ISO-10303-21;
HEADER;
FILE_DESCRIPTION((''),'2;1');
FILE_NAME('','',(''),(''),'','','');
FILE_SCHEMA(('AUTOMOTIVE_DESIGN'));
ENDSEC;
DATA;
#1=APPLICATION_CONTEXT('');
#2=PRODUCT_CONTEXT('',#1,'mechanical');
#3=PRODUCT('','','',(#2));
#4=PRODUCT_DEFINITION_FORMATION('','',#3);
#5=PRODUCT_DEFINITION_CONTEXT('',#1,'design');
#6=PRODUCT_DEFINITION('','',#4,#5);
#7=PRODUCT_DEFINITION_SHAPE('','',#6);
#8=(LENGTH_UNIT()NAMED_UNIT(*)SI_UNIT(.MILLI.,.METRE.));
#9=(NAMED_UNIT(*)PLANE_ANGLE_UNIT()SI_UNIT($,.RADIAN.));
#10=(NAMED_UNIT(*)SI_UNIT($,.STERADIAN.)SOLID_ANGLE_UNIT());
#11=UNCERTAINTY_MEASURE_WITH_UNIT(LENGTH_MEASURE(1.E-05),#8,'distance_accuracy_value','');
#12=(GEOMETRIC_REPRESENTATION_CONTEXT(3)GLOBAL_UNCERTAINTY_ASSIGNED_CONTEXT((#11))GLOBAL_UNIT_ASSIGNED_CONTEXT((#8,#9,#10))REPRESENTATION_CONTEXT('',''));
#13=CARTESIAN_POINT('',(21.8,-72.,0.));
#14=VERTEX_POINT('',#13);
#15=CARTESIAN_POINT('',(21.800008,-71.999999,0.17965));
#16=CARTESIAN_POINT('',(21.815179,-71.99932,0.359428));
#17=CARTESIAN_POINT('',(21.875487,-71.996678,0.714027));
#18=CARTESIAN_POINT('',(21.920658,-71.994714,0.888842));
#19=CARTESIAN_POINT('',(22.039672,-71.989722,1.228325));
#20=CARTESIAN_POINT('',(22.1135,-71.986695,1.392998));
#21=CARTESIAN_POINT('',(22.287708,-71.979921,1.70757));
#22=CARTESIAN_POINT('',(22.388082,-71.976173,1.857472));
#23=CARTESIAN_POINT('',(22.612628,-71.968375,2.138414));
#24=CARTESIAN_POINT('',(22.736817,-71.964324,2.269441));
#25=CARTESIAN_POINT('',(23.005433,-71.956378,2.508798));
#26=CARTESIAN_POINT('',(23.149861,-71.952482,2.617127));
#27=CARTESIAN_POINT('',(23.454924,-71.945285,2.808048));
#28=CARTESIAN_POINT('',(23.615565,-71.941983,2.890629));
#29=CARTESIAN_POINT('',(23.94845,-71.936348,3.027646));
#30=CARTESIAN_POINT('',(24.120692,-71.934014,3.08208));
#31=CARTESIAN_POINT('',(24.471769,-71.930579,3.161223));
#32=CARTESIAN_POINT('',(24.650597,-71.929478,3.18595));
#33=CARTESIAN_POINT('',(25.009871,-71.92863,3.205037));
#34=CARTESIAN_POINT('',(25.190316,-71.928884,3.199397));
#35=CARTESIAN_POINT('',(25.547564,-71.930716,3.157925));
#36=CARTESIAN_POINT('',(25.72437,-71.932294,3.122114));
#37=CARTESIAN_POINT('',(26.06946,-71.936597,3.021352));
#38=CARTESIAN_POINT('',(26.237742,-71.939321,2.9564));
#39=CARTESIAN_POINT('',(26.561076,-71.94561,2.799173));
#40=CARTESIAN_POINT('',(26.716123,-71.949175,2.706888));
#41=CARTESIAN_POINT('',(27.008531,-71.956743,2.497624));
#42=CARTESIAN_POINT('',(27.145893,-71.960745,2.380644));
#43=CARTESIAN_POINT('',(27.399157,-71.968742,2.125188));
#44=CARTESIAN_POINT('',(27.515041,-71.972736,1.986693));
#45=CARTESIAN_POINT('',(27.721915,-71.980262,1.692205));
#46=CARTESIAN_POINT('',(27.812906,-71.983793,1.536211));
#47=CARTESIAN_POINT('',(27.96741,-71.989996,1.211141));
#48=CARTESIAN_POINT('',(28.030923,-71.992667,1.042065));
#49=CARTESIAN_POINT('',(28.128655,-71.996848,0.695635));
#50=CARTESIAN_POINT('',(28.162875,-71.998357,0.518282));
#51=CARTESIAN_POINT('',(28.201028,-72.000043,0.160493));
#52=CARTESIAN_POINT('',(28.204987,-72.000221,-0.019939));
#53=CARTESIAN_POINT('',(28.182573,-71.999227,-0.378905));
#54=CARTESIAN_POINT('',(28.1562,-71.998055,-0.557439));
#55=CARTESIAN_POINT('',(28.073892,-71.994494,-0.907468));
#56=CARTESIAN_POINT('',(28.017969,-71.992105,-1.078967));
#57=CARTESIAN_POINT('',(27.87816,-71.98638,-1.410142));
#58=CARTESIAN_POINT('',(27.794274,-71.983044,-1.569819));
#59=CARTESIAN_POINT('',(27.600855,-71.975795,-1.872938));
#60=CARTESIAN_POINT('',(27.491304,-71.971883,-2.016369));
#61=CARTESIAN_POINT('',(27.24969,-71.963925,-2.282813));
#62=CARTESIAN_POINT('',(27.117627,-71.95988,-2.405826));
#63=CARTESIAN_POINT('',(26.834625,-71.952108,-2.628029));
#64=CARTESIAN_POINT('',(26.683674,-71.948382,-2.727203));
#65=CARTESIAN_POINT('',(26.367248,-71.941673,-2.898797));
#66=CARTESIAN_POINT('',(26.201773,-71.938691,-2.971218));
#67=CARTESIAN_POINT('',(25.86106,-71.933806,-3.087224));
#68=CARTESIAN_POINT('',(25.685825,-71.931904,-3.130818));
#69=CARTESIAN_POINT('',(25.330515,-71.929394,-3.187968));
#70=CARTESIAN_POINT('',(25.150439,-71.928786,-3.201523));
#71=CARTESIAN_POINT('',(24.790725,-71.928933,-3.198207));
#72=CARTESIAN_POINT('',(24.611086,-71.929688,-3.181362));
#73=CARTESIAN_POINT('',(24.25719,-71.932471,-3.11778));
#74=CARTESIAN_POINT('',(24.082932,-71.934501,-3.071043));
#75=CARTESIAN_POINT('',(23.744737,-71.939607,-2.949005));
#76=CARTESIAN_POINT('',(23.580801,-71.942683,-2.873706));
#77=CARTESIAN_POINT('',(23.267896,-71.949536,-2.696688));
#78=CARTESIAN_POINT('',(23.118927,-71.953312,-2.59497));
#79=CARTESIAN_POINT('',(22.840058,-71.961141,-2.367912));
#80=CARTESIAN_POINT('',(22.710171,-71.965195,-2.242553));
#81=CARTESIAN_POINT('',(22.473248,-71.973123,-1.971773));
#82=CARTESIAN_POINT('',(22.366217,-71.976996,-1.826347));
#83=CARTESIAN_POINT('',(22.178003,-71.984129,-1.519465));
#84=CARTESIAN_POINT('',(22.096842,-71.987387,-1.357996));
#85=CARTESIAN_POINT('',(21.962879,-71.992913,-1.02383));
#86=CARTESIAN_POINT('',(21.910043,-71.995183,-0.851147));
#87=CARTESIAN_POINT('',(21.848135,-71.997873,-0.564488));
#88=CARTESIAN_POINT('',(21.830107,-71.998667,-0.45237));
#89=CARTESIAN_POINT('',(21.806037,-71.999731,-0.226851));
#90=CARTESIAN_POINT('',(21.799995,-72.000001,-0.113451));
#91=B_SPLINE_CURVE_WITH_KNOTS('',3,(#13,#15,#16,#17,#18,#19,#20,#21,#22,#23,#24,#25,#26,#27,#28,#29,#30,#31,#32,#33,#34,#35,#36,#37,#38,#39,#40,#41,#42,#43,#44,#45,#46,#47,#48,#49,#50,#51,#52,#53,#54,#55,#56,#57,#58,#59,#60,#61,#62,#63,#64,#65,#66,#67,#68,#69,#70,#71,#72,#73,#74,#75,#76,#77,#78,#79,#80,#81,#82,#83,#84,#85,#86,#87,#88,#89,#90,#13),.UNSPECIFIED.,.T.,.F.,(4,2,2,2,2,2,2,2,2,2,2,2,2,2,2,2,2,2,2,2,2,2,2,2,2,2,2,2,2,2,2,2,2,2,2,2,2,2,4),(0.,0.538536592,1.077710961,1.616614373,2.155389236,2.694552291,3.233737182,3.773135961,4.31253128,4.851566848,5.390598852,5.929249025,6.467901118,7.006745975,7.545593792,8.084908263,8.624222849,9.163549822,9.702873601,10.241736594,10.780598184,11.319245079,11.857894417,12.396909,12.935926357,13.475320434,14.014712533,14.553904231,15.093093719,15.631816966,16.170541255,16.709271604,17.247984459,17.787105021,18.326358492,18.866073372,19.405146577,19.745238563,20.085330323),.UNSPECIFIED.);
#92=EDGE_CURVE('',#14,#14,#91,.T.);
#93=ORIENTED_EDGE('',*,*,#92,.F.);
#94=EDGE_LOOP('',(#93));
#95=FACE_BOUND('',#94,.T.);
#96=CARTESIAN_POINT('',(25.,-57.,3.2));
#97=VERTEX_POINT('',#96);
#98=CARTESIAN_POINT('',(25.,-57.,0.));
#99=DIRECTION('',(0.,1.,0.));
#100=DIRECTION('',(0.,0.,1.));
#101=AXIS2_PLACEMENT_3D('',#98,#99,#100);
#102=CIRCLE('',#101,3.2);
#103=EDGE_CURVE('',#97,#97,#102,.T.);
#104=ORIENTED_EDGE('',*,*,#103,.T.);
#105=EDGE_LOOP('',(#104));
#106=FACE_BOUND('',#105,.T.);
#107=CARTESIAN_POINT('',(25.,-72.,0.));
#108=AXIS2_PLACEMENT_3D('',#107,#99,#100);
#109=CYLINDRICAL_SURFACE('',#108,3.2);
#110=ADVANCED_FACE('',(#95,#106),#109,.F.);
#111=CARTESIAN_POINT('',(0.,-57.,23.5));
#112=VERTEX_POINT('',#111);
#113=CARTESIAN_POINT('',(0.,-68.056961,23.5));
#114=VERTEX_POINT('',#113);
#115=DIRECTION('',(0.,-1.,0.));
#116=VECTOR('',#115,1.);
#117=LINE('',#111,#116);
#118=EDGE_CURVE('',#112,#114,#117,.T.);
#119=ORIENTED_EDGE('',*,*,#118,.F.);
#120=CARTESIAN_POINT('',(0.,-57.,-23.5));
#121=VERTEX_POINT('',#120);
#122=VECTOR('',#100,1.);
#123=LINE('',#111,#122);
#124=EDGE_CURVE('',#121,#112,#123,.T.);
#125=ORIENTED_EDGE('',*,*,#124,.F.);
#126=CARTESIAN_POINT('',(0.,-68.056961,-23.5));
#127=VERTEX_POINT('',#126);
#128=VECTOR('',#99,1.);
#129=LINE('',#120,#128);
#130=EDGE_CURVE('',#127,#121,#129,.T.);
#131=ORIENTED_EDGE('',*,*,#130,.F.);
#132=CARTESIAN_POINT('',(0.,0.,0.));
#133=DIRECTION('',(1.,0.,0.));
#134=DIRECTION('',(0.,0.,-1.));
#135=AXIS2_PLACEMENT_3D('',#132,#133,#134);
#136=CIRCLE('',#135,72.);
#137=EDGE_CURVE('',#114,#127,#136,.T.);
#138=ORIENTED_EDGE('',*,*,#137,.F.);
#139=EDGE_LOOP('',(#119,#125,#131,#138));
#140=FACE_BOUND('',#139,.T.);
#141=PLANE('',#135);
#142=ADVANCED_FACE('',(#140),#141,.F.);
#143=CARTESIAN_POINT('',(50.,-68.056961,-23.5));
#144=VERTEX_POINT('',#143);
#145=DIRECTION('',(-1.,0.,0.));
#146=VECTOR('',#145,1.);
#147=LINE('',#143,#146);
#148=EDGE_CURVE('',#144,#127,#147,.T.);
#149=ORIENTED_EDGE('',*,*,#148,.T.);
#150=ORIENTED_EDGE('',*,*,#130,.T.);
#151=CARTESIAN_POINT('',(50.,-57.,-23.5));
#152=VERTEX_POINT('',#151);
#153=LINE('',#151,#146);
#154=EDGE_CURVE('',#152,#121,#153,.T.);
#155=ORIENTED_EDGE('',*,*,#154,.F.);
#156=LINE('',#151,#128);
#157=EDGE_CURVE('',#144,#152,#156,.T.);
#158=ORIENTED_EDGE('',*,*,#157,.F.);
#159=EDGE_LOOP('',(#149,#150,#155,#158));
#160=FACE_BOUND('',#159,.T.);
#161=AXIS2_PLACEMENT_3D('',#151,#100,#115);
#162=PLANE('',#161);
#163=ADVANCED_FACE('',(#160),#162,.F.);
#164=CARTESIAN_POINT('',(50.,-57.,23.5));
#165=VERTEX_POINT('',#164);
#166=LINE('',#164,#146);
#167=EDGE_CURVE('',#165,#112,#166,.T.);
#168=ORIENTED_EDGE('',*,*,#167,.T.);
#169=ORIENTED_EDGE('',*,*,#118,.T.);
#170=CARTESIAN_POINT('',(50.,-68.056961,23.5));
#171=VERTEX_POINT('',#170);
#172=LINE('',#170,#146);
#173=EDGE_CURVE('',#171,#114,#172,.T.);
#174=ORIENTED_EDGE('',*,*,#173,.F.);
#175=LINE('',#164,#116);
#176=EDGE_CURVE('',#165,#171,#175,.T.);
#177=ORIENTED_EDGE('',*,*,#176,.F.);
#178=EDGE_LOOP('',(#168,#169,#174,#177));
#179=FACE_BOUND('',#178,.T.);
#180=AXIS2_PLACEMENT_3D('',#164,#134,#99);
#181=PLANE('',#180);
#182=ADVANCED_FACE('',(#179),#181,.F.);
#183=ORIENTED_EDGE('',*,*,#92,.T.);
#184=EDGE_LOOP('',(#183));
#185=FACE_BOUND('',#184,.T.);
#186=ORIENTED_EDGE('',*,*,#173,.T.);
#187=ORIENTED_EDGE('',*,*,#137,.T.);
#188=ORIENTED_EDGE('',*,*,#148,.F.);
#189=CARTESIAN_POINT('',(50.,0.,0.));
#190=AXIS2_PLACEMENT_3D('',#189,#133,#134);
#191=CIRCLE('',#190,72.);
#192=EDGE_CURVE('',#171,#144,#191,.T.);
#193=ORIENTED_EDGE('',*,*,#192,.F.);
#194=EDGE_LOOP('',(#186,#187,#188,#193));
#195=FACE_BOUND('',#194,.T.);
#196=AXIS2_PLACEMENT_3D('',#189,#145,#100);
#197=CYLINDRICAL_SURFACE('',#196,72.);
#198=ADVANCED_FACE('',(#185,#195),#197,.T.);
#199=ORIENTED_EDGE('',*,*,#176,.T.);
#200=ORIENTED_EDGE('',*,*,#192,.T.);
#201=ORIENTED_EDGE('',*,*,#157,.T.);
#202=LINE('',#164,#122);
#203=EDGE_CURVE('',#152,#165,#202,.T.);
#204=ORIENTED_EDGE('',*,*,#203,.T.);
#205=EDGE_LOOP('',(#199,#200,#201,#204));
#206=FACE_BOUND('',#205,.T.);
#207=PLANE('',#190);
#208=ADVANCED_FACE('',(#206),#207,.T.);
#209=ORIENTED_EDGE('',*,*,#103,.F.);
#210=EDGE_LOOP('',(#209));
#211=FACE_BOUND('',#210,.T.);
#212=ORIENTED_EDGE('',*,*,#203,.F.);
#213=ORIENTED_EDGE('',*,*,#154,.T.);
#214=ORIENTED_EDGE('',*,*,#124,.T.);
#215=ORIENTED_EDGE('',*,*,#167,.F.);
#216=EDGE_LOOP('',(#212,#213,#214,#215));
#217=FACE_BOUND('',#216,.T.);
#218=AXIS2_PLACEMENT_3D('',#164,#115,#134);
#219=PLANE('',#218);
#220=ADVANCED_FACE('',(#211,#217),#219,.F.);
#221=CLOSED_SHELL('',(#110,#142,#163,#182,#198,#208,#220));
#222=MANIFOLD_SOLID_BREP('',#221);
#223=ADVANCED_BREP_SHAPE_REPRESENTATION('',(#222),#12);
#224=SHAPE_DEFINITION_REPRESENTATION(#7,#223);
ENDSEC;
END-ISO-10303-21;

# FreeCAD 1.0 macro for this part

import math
import FreeCAD as App
import Part
import Sketcher

doc = App.newDocument("Part")
body = doc.addObject("PartDesign::Body", "Body")

# Sketch on YZ plane
sketch1 = body.newObject("Sketcher::SketchObject", "Sketch")
sketch1.AttachmentSupport = (doc.getObject("YZ_Plane"), [""])
sketch1.MapMode = "FlatFace"
sketch1.addGeometry([
    Part.LineSegment(App.Vector(-57, -24, 0), App.Vector(-57, 24, 0)),
    Part.LineSegment(App.Vector(-57, 24, 0), App.Vector(-68, 24, 0)),
    Part.ArcOfCircle(Part.Circle(App.Vector(0, 0, 0), App.Vector(0, 0, 1), 72), math.radians(161), math.radians(199)),
    Part.LineSegment(App.Vector(-68, -24, 0), App.Vector(-57, -24, 0)),
], False)
sketch1.addConstraint([
    Sketcher.Constraint("Coincident", 0, 2, 1, 1),
    Sketcher.Constraint("Coincident", 1, 2, 2, 1),
    Sketcher.Constraint("Coincident", 2, 2, 3, 1),
    Sketcher.Constraint("Coincident", 3, 2, 0, 1),
    Sketcher.Constraint("Vertical", 0),
    Sketcher.Constraint("Horizontal", 1),
    Sketcher.Constraint("Horizontal", 3),
    Sketcher.Constraint("Coincident", 2, 3, -1, 1),
    Sketcher.Constraint("Vertical", 1, 2, 2, 2),
    Sketcher.Constraint("Radius", 2, 72.0),
    Sketcher.Constraint("DistanceY", 0, 1, 0, 2, 47.0),
    Sketcher.Constraint("DistanceX", 0, 2, -1, 1, 57.0),
])
pad1 = body.newObject("PartDesign::Pad", "Pad")
pad1.Profile = sketch1
pad1.Length = 50

# Sketch on XZ plane
sketch2 = body.newObject("Sketcher::SketchObject", "Sketch001")
sketch2.AttachmentSupport = (doc.getObject("XZ_Plane"), [""])
sketch2.MapMode = "FlatFace"
sketch2.AttachmentOffset = App.Placement(App.Vector(0, 0, 57), App.Rotation())
sketch2.addGeometry(Part.Circle(App.Vector(25, 0, 0), App.Vector(0, 0, 1), 3.2), False)
sketch2.addConstraint([
    Sketcher.Constraint("PointOnObject", 0, 3, -1),
    Sketcher.Constraint("Diameter", 0, 6.4),
    Sketcher.Constraint("DistanceX", -1, 1, 0, 3, 25.0),
])
pocket1 = body.newObject("PartDesign::Pocket", "Pocket")
pocket1.Profile = sketch2
pocket1.Type = "ThroughAll"
pocket1.Reversed = True

doc.recompute()
